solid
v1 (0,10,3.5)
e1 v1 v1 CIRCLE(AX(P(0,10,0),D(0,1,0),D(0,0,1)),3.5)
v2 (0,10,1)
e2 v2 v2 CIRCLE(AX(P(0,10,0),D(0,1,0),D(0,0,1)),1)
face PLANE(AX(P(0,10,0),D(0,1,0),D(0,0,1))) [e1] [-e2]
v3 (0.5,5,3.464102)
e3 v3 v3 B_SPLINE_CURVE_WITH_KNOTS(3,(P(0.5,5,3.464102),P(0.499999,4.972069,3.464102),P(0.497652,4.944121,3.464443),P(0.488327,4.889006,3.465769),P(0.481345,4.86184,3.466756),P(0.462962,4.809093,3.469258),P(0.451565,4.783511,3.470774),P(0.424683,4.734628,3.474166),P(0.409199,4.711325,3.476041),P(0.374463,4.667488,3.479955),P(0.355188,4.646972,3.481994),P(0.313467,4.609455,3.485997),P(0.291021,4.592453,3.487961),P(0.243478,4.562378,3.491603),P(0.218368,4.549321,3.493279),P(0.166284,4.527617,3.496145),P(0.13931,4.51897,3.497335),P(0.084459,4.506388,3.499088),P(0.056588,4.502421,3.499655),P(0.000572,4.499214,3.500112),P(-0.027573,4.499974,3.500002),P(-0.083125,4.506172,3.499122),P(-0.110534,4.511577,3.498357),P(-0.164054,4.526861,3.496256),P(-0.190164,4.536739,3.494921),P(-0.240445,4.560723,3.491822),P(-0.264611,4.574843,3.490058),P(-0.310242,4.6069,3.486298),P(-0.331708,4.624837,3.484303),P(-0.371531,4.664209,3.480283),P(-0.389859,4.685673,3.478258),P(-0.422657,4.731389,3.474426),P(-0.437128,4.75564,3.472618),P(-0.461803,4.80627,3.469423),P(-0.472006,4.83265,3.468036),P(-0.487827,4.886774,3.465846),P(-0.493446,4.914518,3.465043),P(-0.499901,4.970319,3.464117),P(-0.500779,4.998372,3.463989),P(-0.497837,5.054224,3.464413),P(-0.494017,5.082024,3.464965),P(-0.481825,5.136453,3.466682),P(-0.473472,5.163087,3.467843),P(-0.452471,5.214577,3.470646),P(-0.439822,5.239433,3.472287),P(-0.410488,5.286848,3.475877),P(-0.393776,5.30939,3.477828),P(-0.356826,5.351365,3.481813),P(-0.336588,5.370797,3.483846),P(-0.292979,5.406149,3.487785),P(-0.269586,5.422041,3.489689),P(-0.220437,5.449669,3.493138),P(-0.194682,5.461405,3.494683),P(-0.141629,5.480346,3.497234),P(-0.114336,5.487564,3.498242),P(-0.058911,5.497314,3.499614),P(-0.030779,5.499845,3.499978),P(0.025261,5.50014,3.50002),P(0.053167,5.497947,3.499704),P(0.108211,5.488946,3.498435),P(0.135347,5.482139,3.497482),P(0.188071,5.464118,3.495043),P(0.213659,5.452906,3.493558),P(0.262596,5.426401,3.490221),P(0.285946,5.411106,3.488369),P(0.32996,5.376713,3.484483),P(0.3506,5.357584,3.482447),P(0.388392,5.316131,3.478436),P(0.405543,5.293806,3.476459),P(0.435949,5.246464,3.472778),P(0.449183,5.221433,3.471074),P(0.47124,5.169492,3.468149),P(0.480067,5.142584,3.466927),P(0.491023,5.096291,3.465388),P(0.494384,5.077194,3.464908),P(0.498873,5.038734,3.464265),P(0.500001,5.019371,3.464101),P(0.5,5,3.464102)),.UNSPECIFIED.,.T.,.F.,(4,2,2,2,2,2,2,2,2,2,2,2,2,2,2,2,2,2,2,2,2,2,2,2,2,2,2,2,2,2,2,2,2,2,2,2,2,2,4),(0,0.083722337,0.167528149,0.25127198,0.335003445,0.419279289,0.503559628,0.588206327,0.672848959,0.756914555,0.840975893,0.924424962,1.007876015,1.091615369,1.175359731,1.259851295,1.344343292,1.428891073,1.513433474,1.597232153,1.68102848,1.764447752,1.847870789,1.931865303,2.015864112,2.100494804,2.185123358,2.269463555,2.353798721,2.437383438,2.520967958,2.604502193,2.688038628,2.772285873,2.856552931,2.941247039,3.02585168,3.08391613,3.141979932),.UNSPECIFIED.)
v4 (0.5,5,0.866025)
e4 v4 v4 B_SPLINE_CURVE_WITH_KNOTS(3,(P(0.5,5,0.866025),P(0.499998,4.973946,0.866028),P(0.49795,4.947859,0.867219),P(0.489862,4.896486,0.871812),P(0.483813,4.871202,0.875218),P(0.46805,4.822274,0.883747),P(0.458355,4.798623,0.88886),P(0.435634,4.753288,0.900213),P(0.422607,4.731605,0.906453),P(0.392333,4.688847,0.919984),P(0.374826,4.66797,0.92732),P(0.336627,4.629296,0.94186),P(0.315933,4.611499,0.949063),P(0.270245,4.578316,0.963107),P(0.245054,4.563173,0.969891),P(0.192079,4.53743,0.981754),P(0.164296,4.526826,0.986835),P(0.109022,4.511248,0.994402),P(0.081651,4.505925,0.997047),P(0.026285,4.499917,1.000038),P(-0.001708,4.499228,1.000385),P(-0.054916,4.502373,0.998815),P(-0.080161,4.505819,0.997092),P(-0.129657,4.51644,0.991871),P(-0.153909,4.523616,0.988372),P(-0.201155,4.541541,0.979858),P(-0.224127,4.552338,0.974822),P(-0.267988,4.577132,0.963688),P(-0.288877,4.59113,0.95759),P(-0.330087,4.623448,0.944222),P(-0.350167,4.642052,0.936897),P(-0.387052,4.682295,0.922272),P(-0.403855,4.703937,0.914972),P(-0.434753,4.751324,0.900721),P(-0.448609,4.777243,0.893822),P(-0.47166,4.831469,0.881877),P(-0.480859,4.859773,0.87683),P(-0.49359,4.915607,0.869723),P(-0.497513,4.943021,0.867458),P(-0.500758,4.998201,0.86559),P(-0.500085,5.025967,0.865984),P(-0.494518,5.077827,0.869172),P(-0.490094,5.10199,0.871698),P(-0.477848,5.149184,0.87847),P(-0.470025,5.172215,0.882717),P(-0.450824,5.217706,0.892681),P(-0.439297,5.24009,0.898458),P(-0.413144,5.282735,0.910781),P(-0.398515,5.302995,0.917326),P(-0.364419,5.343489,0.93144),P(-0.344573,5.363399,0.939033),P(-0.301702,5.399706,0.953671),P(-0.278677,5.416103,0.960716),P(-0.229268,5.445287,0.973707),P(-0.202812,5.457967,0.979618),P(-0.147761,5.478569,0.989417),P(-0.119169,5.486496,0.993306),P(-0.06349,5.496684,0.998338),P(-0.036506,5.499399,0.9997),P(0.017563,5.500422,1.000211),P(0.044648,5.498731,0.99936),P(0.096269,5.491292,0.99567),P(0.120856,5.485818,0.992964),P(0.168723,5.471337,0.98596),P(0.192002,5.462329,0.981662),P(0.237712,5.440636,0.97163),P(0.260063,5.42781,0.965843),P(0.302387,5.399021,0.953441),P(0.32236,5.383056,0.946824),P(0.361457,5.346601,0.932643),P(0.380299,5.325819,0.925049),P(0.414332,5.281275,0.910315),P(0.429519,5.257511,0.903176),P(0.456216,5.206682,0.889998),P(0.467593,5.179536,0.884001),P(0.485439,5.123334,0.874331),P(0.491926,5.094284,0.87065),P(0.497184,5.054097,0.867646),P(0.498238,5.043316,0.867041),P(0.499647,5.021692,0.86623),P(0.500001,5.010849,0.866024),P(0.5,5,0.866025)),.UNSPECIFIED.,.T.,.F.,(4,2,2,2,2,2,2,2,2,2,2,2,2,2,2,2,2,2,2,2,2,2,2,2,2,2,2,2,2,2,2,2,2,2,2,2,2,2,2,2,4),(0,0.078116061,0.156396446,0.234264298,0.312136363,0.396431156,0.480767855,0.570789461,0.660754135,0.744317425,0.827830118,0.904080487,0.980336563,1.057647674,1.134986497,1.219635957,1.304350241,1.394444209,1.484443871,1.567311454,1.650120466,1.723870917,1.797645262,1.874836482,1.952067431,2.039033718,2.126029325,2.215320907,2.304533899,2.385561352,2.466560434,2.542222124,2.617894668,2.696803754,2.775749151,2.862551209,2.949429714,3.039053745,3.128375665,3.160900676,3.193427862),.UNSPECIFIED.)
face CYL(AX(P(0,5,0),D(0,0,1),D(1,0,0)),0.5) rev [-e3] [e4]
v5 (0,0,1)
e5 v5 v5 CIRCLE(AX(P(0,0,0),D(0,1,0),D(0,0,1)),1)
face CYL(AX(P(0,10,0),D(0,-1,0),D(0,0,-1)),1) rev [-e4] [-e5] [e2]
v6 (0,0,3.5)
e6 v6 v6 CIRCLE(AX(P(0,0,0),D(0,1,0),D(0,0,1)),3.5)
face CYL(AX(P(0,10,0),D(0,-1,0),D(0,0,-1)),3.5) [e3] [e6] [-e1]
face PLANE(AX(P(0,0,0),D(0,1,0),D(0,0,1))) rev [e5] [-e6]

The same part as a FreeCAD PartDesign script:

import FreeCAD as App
import Part
import Sketcher
from FreeCAD import Vector

doc = App.newDocument("Part")
params = doc.addObject("Spreadsheet::Sheet", "Params")
for row, (alias, value) in enumerate([
    ("sketch1_diameter", "7 mm"),
    ("sketch1_diameter2", "2 mm"),
    ("pad1_length", "10 mm"),
    ("sketch2_diameter", "1 mm"),
    ("pocket1_length", "3.5 mm"),
], start=1):
    params.set(f"A{row}", alias)
    params.set(f"B{row}", "=" + value)
    params.setAlias(f"B{row}", alias)

body = doc.addObject("PartDesign::Body", "Body")

# Sketch on XZ plane
sketch1 = doc.addObject("Sketcher::SketchObject", "Sketch")
body.addObject(sketch1)
sketch1.AttachmentSupport = (doc.XZ_Plane, [""])
sketch1.MapMode = "FlatFace"
sketch1.addGeometry(Part.Circle(Vector(0, 0, 0), Vector(0, 0, 1), 3.5), False)
sketch1.addGeometry(Part.Circle(Vector(0, 0, 0), Vector(0, 0, 1), 1), False)
sketch1.addConstraint(Sketcher.Constraint("Coincident", 0, 3, -1, 1))
sketch1.addConstraint(Sketcher.Constraint("Coincident", 1, 3, -1, 1))
sketch1.addConstraint(Sketcher.Constraint("Diameter", 0, 7.0))
sketch1.addConstraint(Sketcher.Constraint("Diameter", 1, 2.0))
sketch1.setExpression("Constraints[2]", "Params.sketch1_diameter")
sketch1.setExpression("Constraints[3]", "Params.sketch1_diameter2")
pad1 = doc.addObject("PartDesign::Pad", "Pad")
body.addObject(pad1)
pad1.Profile = sketch1
pad1.setExpression("Length", "Params.pad1_length")
pad1.Reversed = True

# Sketch on XY plane
sketch2 = doc.addObject("Sketcher::SketchObject", "Sketch001")
body.addObject(sketch2)
sketch2.AttachmentSupport = (doc.XY_Plane, [""])
sketch2.MapMode = "FlatFace"
sketch2.AttachmentOffset = App.Placement(Vector(0, 0, 3.5), App.Rotation())
sketch2.addGeometry(Part.Circle(Vector(0, 5, 0), Vector(0, 0, 1), 0.5), False)
sketch2.addConstraint(Sketcher.Constraint("PointOnObject", 0, 3, -2))
sketch2.addConstraint(Sketcher.Constraint("Diameter", 0, 1.0))
sketch2.addConstraint(Sketcher.Constraint("DistanceY", -1, 1, 0, 3, 5.0))
sketch2.setExpression("Constraints[1]", "Params.sketch2_diameter")
pocket1 = doc.addObject("PartDesign::Pocket", "Pocket")
body.addObject(pocket1)
pocket1.Profile = sketch2
pocket1.setExpression("Length", "Params.pocket1_length")

doc.recompute()
